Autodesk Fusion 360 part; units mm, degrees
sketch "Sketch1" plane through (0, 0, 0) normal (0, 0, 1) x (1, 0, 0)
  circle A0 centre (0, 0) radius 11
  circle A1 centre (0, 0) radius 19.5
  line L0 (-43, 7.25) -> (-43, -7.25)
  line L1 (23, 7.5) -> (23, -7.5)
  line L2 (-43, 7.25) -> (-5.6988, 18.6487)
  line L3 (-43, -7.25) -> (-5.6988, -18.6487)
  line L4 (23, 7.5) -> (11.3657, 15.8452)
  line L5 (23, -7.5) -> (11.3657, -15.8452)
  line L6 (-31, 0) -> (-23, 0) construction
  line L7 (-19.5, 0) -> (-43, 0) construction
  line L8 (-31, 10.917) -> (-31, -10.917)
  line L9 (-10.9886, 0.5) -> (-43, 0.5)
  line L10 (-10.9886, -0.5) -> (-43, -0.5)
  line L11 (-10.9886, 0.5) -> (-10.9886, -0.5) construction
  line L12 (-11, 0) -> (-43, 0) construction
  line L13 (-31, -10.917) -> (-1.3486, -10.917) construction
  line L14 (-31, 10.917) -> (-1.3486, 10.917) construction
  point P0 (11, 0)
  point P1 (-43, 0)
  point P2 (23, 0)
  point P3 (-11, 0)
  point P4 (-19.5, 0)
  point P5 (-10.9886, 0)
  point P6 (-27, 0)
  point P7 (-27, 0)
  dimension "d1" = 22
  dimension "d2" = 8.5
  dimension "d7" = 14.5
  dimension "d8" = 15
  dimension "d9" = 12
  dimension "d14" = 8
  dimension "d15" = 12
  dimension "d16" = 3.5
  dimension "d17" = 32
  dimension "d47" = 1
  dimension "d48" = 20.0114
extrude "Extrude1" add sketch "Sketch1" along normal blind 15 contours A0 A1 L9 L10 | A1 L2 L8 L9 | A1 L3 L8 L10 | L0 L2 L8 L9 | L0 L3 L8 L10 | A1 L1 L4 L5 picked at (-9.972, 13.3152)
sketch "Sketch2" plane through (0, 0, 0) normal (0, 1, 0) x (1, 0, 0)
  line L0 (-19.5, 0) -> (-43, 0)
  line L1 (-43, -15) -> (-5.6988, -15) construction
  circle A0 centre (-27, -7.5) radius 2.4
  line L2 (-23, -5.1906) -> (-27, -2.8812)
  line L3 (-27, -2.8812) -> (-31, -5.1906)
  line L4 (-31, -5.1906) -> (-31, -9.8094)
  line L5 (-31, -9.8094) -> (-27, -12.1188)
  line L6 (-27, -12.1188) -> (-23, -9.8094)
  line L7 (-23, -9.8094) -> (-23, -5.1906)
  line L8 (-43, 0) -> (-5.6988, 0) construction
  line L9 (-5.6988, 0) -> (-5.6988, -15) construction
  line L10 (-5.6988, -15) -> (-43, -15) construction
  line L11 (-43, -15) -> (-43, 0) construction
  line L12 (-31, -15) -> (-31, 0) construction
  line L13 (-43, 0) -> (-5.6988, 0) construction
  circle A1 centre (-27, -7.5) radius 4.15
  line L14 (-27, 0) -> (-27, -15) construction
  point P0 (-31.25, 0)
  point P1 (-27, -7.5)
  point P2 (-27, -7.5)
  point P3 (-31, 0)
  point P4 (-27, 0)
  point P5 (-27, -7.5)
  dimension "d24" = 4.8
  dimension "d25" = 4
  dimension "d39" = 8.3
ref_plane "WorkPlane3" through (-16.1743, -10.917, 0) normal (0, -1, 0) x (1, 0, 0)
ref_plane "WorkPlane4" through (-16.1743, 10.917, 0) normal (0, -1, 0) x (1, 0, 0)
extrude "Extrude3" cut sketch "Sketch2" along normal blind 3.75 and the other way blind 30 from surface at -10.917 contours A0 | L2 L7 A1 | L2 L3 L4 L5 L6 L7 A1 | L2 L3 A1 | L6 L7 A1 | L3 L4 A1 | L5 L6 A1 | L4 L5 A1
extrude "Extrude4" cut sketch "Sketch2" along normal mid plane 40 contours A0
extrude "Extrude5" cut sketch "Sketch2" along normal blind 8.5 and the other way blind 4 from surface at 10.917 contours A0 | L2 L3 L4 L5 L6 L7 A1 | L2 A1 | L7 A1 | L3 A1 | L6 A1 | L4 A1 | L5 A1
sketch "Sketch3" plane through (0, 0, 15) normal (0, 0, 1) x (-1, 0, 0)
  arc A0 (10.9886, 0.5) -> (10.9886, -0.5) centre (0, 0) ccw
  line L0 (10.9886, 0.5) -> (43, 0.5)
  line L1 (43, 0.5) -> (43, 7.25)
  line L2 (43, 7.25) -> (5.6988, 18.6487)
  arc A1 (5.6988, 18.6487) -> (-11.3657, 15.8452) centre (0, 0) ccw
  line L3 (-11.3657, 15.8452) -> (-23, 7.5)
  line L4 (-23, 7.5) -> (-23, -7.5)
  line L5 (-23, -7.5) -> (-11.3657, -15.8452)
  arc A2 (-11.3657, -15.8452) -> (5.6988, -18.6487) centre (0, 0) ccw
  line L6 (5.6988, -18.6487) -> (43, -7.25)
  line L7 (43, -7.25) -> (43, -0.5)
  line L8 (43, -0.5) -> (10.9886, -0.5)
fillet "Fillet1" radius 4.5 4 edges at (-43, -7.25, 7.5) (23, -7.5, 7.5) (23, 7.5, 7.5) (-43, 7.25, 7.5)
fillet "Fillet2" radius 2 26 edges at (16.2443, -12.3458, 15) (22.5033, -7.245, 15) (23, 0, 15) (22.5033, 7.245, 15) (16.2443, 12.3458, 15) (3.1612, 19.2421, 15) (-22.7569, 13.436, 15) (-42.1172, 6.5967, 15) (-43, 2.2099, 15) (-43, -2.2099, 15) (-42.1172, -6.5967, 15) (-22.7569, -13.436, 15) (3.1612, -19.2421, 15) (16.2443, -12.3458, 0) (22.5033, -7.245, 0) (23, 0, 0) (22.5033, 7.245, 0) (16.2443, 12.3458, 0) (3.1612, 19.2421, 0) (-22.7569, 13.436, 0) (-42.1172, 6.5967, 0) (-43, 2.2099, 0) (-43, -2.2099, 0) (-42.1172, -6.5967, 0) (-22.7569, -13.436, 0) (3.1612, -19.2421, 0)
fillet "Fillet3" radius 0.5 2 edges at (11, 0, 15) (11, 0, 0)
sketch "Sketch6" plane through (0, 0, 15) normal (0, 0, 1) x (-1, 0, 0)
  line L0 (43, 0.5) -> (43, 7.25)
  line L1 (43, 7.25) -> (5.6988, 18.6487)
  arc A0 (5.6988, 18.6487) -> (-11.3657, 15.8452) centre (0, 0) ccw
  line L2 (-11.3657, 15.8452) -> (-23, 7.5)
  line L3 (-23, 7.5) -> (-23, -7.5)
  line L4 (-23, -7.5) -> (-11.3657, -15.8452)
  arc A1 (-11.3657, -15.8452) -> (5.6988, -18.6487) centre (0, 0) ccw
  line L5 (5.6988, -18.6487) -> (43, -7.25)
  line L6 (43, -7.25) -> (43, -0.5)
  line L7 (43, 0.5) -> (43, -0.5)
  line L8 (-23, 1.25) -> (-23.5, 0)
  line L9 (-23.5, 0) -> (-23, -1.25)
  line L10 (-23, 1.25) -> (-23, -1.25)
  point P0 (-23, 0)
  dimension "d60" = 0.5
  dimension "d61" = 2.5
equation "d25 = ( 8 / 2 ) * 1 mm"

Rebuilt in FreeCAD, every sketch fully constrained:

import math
import FreeCAD as App
import Part
import Sketcher
Q = App.Units.Quantity


def edges_at(feature, points):
    """Names of the edges that pass closest to the given points."""
    edges = feature.Shape.Edges
    near = lambda p: min(range(len(edges)), key=lambda i: edges[i].distToShape(Part.Vertex(*p))[0])
    return sorted({f"Edge{near(p) + 1}" for p in points})

doc = App.newDocument("Part")
params = doc.addObject("Spreadsheet::Sheet", "Params")
for row, (alias, value) in enumerate([
    ("sketch1_radius", "11 mm"),
    ("sketch1_height", "15 mm"),
    ("sketch1_radius2", "19.5 mm"),
    ("pad1_length", "15 mm"),
    ("pocket1_length", "3.75 mm"),
    ("pocket1_length2", "30 mm"),
    ("sketch3_diameter", "4.8 mm"),
    ("pocket2_length", "40 mm"),
    ("sketch4_diameter", "8.3 mm"),
    ("pocket3_length", "8.5 mm"),
    ("pocket3_length2", "4 mm"),
    ("fillet_radius", "4.5 mm"),
    ("fillet2_radius", "2 mm"),
    ("fillet3_radius", "0.5 mm"),
], start=1):
    params.set(f"A{row}", alias)
    params.set(f"B{row}", "=" + value)
    params.setAlias(f"B{row}", alias)

body = doc.addObject("PartDesign::Body", "Body")

sketch1 = doc.addObject("Sketcher::SketchObject", "Sketch")
body.addObject(sketch1)
sketch1.AttachmentSupport = (doc.XY_Plane, [""])
sketch1.MapMode = "FlatFace"
sketch1.addGeometry([
    Part.ArcOfCircle(Part.Circle(App.Vector(0, 0, 0), App.Vector(0, 0, 1), 11), math.radians(-177.394742), math.radians(177.394742)),
    Part.LineSegment(App.Vector(-10.9886, -0.5, 0), App.Vector(-43, -0.5, 0)),
    Part.LineSegment(App.Vector(-43, -0.5, 0), App.Vector(-43, -7.25, 0)),
    Part.LineSegment(App.Vector(-43, -7.25, 0), App.Vector(-5.6988, -18.6487, 0)),
    Part.ArcOfCircle(Part.Circle(App.Vector(0, 0, 0), App.Vector(0, 0, 1), 19.5), math.radians(-106.99247), math.radians(-54.348274)),
    Part.LineSegment(App.Vector(11.3657, -15.8452, 0), App.Vector(23, -7.5, 0)),
    Part.LineSegment(App.Vector(23, -7.5, 0), App.Vector(23, 7.5, 0)),
    Part.LineSegment(App.Vector(23, 7.5, 0), App.Vector(11.3657, 15.8452, 0)),
    Part.ArcOfCircle(Part.Circle(App.Vector(0, 0, 0), App.Vector(0, 0, 1), 19.5), math.radians(54.348274), math.radians(106.99247)),
    Part.LineSegment(App.Vector(-5.6988, 18.6487, 0), App.Vector(-43, 7.25, 0)),
    Part.LineSegment(App.Vector(-43, 7.25, 0), App.Vector(-43, 0.5, 0)),
    Part.LineSegment(App.Vector(-43, 0.5, 0), App.Vector(-10.9886, 0.5, 0)),
], False)
sketch1.addConstraint([
    Sketcher.Constraint("Coincident", 0, 1, 1, 1),
    Sketcher.Constraint("Coincident", 1, 2, 2, 1),
    Sketcher.Constraint("Coincident", 2, 2, 3, 1),
    Sketcher.Constraint("Tangent", 3, 2, 4, 1),
    Sketcher.Constraint("Tangent", 4, 2, 5, 1),
    Sketcher.Constraint("Coincident", 5, 2, 6, 1),
    Sketcher.Constraint("Coincident", 6, 2, 7, 1),
    Sketcher.Constraint("Tangent", 7, 2, 8, 1),
    Sketcher.Constraint("Tangent", 8, 2, 9, 1),
    Sketcher.Constraint("Coincident", 9, 2, 10, 1),
    Sketcher.Constraint("Coincident", 10, 2, 11, 1),
    Sketcher.Constraint("Coincident", 11, 2, 0, 2),
    Sketcher.Constraint("Horizontal", 1),
    Sketcher.Constraint("Vertical", 2),
    Sketcher.Constraint("Vertical", 6),
    Sketcher.Constraint("Vertical", 10),
    Sketcher.Constraint("Horizontal", 11),
    Sketcher.Constraint("Coincident", 0, 3, -1, 1),
    Sketcher.Constraint("Coincident", 4, 3, -1, 1),
    Sketcher.Constraint("Coincident", 8, 3, -1, 1),
    Sketcher.Constraint("Equal", 4, 8),
    Sketcher.Constraint("Symmetric", 2, 2, 9, 2, -1),
    Sketcher.Constraint("Vertical", 4, 2, 7, 2),
    Sketcher.Constraint("Vertical", 0, 1, 11, 2),
    Sketcher.Constraint("Radius", 0, Q("11 mm")),
    Sketcher.Constraint("DistanceY", 6, 1, 6, 2, Q("15 mm")),
    Sketcher.Constraint("DistanceY", 1, 2, 10, 2, Q("1 mm")),
    Sketcher.Constraint("Radius", 4, Q("19.5 mm")),
    Sketcher.Constraint("DistanceY", 2, 2, 9, 2, Q("14.5 mm")),
    Sketcher.Constraint("DistanceX", 1, 2, -1, 1, Q("43 mm")),
    Sketcher.Constraint("DistanceX", -1, 1, 5, 2, Q("23 mm")),
])
sketch1.setExpression("Constraints[24]", "Params.sketch1_radius")
sketch1.setExpression("Constraints[25]", "Params.sketch1_height")
sketch1.setExpression("Constraints[27]", "Params.sketch1_radius2")
pad1 = doc.addObject("PartDesign::Pad", "Pad")
body.addObject(pad1)
pad1.Profile = sketch1
pad1.setExpression("Length", "Params.pad1_length")

sketch2 = doc.addObject("Sketcher::SketchObject", "Sketch001")
body.addObject(sketch2)
sketch2.AttachmentSupport = (doc.XZ_Plane, [""])
sketch2.MapMode = "FlatFace"
sketch2.AttachmentOffset = App.Placement(App.Vector(0, 0, 10.917), App.Rotation())
sketch2.addGeometry([
    Part.LineSegment(App.Vector(-23, 5.1906, 0), App.Vector(-27, 2.8812, 0)),
    Part.LineSegment(App.Vector(-27, 2.8812, 0), App.Vector(-31, 5.1906, 0)),
    Part.LineSegment(App.Vector(-31, 5.1906, 0), App.Vector(-31, 9.8094, 0)),
    Part.LineSegment(App.Vector(-31, 9.8094, 0), App.Vector(-27, 12.1188, 0)),
    Part.LineSegment(App.Vector(-27, 12.1188, 0), App.Vector(-23, 9.8094, 0)),
    Part.LineSegment(App.Vector(-23, 9.8094, 0), App.Vector(-23, 5.1906, 0)),
], False)
sketch2.addConstraint([
    Sketcher.Constraint("Coincident", 0, 2, 1, 1),
    Sketcher.Constraint("Coincident", 1, 2, 2, 1),
    Sketcher.Constraint("Coincident", 2, 2, 3, 1),
    Sketcher.Constraint("Coincident", 3, 2, 4, 1),
    Sketcher.Constraint("Coincident", 4, 2, 5, 1),
    Sketcher.Constraint("Coincident", 5, 2, 0, 1),
    Sketcher.Constraint("Vertical", 2),
    Sketcher.Constraint("Vertical", 5),
    Sketcher.Constraint("Parallel", 0, 3),
    Sketcher.Constraint("Parallel", 1, 4),
    Sketcher.Constraint("Horizontal", 2, 2, 4, 2),
    Sketcher.Constraint("Horizontal", 1, 2, 5, 2),
    Sketcher.Constraint("Vertical", 0, 2, 3, 2),
    Sketcher.Constraint("DistanceX", 1, 2, 0, 2, Q("4 mm")),
    Sketcher.Constraint("Angle", 0, Q("-150 deg")),
    Sketcher.Constraint("DistanceX", 0, 2, -1, 1, Q("27 mm")),
    Sketcher.Constraint("DistanceY", 2, 1, 2, 2, Q("4.6188 mm")),
    Sketcher.Constraint("DistanceY", -1, 1, 0, 2, Q("2.8812 mm")),
])
pocket1 = doc.addObject("PartDesign::Pocket", "Pocket")
body.addObject(pocket1)
pocket1.Profile = sketch2
pocket1.Type = "TwoLengths"
pocket1.setExpression("Length", "Params.pocket1_length")
pocket1.setExpression("Length2", "Params.pocket1_length2")

sketch3 = doc.addObject("Sketcher::SketchObject", "Sketch002")
body.addObject(sketch3)
sketch3.AttachmentSupport = (doc.XZ_Plane, [""])
sketch3.MapMode = "FlatFace"
sketch3.addGeometry(Part.Circle(App.Vector(-27, 7.5, 0), App.Vector(0, 0, 1), 2.4), False)
sketch3.addConstraint([
    Sketcher.Constraint("Diameter", 0, Q("4.8 mm")),
    Sketcher.Constraint("DistanceX", 0, 3, -1, 1, Q("27 mm")),
    Sketcher.Constraint("DistanceY", -1, 1, 0, 3, Q("7.5 mm")),
])
sketch3.setExpression("Constraints[0]", "Params.sketch3_diameter")
pocket2 = doc.addObject("PartDesign::Pocket", "Pocket001")
body.addObject(pocket2)
pocket2.Profile = sketch3
pocket2.setExpression("Length", "Params.pocket2_length")
pocket2.Midplane = True

sketch4 = doc.addObject("Sketcher::SketchObject", "Sketch003")
body.addObject(sketch4)
sketch4.AttachmentSupport = (doc.XZ_Plane, [""])
sketch4.MapMode = "FlatFace"
sketch4.AttachmentOffset = App.Placement(App.Vector(0, 0, -10.917), App.Rotation())
sketch4.addGeometry(Part.Circle(App.Vector(-27, 7.5, 0), App.Vector(0, 0, 1), 4.15), False)
sketch4.addConstraint([
    Sketcher.Constraint("Diameter", 0, Q("8.3 mm")),
    Sketcher.Constraint("DistanceX", 0, 3, -1, 1, Q("27 mm")),
    Sketcher.Constraint("DistanceY", -1, 1, 0, 3, Q("7.5 mm")),
])
sketch4.setExpression("Constraints[0]", "Params.sketch4_diameter")
pocket3 = doc.addObject("PartDesign::Pocket", "Pocket002")
body.addObject(pocket3)
pocket3.Profile = sketch4
pocket3.Type = "TwoLengths"
pocket3.setExpression("Length", "Params.pocket3_length")
pocket3.setExpression("Length2", "Params.pocket3_length2")
doc.recompute()

fillet = doc.addObject("PartDesign::Fillet", "Fillet")
body.addObject(fillet)
fillet.Base = (pocket3, edges_at(pocket3, [
    (-43, -7.25, 7.5),
    (23, -7.5, 7.5),
    (23, 7.5, 7.5),
    (-43, 7.25, 7.5),
]))
fillet.setExpression("Radius", "Params.fillet_radius")
doc.recompute()

fillet2 = doc.addObject("PartDesign::Fillet", "Fillet001")
body.addObject(fillet2)
fillet2.Base = (fillet, edges_at(fillet, [
    (16.244, -12.346, 15),
    (22.503, -7.245, 15),
    (23, 0, 15),
    (22.503, 7.245, 15),
    (16.244, 12.346, 15),
    (3.161, 19.242, 15),
    (-22.757, 13.436, 15),
    (-42.117, 6.597, 15),
    (-43, 2.21, 15),
    (-43, -2.21, 15),
    (-42.117, -6.597, 15),
    (-22.757, -13.436, 15),
    (3.161, -19.242, 15),
    (16.244, -12.346, 0),
    (22.503, -7.245, 0),
    (23, 0, 0),
    (22.503, 7.245, 0),
    (16.244, 12.346, 0),
    (3.161, 19.242, 0),
    (-22.757, 13.436, 0),
    (-42.117, 6.597, 0),
    (-43, 2.21, 0),
    (-43, -2.21, 0),
    (-42.117, -6.597, 0),
    (-22.757, -13.436, 0),
    (3.161, -19.242, 0),
]))
fillet2.setExpression("Radius", "Params.fillet2_radius")
doc.recompute()

fillet3 = doc.addObject("PartDesign::Fillet", "Fillet002")
body.addObject(fillet3)
fillet3.Base = (fillet2, edges_at(fillet2, [(11, 0, 15), (11, 0, 0)]))
fillet3.setExpression("Radius", "Params.fillet3_radius")

doc.recompute()
